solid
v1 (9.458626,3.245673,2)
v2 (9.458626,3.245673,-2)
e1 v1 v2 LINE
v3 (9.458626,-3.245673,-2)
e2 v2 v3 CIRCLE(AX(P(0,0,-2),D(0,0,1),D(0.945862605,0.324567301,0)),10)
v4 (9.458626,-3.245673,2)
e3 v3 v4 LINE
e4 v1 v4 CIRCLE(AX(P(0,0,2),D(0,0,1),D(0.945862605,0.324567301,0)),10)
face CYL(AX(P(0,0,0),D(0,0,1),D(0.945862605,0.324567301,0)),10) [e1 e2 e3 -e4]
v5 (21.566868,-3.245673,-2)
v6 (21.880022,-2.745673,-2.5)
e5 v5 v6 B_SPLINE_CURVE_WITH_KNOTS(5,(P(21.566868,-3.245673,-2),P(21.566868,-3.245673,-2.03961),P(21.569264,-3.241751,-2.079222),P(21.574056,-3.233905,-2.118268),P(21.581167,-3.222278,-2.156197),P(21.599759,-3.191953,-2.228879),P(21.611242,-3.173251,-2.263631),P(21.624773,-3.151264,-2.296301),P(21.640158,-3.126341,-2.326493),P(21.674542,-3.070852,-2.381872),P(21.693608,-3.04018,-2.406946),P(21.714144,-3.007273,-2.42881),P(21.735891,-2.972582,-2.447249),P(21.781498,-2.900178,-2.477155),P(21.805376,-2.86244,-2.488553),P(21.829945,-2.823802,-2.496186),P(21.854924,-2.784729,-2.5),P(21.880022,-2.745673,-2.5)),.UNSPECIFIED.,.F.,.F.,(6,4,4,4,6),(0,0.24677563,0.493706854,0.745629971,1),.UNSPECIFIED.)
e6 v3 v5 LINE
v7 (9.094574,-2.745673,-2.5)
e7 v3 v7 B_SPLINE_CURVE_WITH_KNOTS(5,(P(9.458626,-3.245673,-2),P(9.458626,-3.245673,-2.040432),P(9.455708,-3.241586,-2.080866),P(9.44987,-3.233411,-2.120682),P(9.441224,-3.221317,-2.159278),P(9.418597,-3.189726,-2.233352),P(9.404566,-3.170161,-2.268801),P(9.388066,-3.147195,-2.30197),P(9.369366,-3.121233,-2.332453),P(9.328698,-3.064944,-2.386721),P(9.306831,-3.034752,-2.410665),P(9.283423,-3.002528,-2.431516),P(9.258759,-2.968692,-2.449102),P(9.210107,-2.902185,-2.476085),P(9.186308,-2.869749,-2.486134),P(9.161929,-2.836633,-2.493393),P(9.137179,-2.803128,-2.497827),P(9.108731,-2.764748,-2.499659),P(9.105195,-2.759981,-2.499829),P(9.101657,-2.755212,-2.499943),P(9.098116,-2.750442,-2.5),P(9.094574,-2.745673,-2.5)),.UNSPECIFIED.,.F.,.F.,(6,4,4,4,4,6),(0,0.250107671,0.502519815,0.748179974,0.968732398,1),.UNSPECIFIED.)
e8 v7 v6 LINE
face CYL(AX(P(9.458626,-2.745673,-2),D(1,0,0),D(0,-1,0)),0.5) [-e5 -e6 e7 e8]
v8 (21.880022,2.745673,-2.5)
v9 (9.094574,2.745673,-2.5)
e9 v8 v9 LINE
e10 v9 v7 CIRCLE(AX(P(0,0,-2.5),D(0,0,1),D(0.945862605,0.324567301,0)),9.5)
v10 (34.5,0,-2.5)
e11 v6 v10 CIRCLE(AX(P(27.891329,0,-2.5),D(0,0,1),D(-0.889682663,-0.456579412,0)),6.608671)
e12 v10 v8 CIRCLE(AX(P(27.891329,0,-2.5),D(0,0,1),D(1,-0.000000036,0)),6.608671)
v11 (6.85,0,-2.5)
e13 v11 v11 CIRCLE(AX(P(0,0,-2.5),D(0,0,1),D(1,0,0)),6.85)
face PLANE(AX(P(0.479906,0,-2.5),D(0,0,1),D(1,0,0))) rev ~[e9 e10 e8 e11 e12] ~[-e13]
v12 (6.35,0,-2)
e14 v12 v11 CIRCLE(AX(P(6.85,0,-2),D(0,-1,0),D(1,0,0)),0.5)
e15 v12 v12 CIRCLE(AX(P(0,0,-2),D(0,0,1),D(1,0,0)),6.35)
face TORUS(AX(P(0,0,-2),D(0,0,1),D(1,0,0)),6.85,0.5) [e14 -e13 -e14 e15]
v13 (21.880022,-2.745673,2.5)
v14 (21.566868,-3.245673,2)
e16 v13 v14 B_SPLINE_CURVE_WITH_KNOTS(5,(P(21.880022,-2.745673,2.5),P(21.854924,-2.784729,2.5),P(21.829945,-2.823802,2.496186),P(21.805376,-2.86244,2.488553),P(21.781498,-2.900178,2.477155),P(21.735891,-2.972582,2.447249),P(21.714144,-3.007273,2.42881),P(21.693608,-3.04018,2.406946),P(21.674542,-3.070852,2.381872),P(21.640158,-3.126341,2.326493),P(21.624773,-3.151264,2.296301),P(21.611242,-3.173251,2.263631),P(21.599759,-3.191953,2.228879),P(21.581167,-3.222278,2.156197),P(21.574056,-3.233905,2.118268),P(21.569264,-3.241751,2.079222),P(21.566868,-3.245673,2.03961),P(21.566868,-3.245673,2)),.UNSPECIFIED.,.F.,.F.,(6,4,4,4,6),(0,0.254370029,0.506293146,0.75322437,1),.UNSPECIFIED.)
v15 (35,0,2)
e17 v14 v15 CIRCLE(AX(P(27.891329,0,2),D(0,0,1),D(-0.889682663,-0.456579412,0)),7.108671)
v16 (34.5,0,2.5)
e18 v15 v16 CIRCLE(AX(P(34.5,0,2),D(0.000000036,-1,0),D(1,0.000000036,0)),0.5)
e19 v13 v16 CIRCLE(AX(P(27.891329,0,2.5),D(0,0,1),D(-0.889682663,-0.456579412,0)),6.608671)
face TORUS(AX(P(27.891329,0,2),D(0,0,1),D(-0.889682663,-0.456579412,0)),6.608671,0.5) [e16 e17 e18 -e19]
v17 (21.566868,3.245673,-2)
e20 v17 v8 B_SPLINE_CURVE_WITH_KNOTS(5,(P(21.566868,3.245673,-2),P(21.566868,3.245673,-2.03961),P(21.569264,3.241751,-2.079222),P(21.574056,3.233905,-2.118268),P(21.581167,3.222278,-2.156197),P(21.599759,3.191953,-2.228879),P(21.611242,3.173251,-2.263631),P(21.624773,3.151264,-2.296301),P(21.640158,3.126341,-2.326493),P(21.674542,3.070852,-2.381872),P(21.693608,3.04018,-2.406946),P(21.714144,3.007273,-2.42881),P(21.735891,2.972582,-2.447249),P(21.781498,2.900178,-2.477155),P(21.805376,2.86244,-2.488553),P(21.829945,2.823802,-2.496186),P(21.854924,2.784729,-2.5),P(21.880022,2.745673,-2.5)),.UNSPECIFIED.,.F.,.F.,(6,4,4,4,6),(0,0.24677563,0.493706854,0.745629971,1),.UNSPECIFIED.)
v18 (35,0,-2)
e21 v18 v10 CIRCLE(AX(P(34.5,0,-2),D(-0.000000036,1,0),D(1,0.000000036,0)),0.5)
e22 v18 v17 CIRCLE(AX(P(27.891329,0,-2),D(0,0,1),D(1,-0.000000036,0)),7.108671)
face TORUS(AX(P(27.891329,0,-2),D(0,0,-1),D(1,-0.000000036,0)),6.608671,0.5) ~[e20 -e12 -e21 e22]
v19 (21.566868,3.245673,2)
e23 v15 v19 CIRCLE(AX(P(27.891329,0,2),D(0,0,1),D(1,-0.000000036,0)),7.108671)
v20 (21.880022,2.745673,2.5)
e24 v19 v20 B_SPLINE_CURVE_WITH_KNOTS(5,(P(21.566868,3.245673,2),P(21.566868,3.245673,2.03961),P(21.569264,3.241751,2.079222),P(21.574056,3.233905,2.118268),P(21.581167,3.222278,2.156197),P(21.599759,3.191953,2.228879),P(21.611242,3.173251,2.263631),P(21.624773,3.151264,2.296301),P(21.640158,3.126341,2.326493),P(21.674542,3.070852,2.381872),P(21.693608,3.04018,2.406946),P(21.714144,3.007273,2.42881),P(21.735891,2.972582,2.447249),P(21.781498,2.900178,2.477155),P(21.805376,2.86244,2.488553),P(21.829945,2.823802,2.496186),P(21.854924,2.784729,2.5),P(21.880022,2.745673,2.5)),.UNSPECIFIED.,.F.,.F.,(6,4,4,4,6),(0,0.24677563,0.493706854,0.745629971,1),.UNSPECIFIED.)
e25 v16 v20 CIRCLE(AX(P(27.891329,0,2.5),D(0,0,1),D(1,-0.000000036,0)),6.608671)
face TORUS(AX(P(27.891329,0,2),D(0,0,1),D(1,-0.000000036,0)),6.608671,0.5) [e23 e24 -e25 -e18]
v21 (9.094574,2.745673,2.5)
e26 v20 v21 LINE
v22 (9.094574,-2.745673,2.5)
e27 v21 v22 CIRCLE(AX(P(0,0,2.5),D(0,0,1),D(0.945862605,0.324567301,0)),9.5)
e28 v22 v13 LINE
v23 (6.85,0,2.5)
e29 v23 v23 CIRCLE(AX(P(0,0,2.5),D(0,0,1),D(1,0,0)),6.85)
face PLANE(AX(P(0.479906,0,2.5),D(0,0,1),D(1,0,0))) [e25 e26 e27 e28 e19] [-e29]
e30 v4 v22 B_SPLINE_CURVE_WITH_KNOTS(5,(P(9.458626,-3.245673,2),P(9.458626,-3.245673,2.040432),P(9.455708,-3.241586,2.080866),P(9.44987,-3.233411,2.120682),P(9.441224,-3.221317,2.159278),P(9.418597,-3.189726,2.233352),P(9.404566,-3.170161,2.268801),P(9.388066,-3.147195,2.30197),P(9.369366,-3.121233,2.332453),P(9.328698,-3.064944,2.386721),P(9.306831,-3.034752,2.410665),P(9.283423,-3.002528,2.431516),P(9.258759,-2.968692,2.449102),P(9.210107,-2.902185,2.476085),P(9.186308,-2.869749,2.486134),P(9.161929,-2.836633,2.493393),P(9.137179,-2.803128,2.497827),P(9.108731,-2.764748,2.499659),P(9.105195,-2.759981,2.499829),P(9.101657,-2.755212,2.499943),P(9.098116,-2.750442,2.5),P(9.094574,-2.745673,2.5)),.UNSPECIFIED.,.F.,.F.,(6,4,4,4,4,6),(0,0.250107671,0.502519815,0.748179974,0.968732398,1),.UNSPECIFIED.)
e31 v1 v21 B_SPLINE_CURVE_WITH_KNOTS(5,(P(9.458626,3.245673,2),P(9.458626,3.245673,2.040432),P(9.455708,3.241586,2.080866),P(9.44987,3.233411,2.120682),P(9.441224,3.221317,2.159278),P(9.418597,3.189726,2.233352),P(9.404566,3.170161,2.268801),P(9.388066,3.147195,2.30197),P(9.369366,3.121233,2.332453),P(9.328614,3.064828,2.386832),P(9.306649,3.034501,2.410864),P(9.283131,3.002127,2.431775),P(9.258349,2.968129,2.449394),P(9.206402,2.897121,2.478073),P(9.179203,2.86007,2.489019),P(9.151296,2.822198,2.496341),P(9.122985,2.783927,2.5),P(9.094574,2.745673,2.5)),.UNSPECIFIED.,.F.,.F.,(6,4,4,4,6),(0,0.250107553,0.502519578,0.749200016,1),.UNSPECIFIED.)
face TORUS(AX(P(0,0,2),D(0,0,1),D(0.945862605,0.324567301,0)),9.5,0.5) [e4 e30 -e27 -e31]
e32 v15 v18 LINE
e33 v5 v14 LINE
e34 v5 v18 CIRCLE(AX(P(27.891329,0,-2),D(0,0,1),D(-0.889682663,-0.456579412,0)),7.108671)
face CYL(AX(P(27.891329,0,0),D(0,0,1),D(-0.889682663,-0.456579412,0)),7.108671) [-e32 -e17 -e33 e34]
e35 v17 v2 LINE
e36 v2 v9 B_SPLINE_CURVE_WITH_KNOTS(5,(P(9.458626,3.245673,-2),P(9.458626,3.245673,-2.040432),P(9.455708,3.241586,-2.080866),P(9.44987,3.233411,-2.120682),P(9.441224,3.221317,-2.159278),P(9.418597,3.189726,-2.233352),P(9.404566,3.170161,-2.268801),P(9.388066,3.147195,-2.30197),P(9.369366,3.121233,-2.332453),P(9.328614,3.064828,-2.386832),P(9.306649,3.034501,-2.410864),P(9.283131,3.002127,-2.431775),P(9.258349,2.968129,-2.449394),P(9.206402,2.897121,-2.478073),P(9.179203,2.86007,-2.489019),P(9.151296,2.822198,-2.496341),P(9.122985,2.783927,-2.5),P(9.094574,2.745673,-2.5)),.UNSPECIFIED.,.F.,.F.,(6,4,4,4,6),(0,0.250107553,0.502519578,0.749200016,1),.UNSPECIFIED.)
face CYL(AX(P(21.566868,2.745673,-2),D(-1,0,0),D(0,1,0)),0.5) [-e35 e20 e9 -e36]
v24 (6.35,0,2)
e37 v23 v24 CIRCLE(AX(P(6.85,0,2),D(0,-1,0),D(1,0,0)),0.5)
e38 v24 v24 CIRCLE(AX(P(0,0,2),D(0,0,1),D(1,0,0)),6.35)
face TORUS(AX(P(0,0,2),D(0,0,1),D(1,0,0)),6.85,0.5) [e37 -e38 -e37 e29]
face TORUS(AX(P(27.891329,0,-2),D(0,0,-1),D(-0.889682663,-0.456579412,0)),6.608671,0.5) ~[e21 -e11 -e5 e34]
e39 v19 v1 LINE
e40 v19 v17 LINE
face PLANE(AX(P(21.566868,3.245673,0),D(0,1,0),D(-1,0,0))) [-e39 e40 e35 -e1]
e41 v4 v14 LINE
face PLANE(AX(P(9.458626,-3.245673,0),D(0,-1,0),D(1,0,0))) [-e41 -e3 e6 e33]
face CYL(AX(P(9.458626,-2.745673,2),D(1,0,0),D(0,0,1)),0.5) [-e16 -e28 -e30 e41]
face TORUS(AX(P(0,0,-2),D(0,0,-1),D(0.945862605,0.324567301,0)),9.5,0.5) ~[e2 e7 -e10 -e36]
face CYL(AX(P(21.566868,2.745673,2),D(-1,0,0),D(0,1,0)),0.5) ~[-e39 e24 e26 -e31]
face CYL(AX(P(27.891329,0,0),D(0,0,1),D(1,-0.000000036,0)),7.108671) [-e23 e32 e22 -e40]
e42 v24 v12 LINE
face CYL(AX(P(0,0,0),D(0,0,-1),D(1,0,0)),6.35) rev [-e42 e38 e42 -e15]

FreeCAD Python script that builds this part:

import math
import FreeCAD as App
import Part
import Sketcher

V = App.Vector
Q = App.Units.Quantity


def edges_at(feature, points):
    """Names of the edges that pass closest to the given points."""
    edges = feature.Shape.Edges
    near = lambda p: min(range(len(edges)), key=lambda i: edges[i].distToShape(Part.Vertex(*p))[0])
    return sorted({f"Edge{near(p) + 1}" for p in points})

doc = App.newDocument("Part")
body = doc.addObject("PartDesign::Body", "Body")

# Sketch on XY plane
sketch1 = doc.addObject("Sketcher::SketchObject", "Sketch")
body.addObject(sketch1)
sketch1.AttachmentSupport = (doc.XY_Plane, [""])
sketch1.MapMode = "FlatFace"
sketch1.addGeometry([
    Part.ArcOfCircle(Part.Circle(V(0, 0, 0), V(0, 0, 1), 10), math.radians(19), math.radians(341)),  # 0
    Part.LineSegment(V(9, -3, 0), V(22, -3, 0)),  # 1
    Part.ArcOfCircle(Part.Circle(V(28, 0, 0), V(0, 0, 1), 7), math.radians(-153), math.radians(0)),  # 2
    Part.ArcOfCircle(Part.Circle(V(28, 0, 0), V(0, 0, 1), 7), math.radians(0), math.radians(153)),  # 3
    Part.LineSegment(V(22, 3, 0), V(9, 3, 0)),  # 4
    Part.Circle(V(0, 0, 0), V(0, 0, 1), 6),  # 5
], False)
sketch1.addConstraint([
    Sketcher.Constraint("Coincident", 0, 2, 1, 1),
    Sketcher.Constraint("Coincident", 1, 2, 2, 1),
    Sketcher.Constraint("Tangent", 2, 2, 3, 1),
    Sketcher.Constraint("Coincident", 3, 2, 4, 1),
    Sketcher.Constraint("Coincident", 4, 2, 0, 1),
    Sketcher.Constraint("Horizontal", 1),
    Sketcher.Constraint("Horizontal", 4),
    Sketcher.Constraint("Coincident", 0, 3, -1, 1),
    Sketcher.Constraint("Coincident", 5, 3, -1, 1),
    Sketcher.Constraint("Equal", 2, 3),
    Sketcher.Constraint("Symmetric", 1, 2, 3, 2, -1),
    Sketcher.Constraint("PointOnObject", 2, 2, -1),
    Sketcher.Constraint("Radius", 0, Q("10 mm")),
    Sketcher.Constraint("Diameter", 5, Q("12.7 mm")),
    Sketcher.Constraint("DistanceX", -1, 1, 2, 2, Q("35 mm")),
    Sketcher.Constraint("Radius", 2, Q("7.108671 mm")),
    Sketcher.Constraint("DistanceX", 1, 1, 1, 2, Q("12.108242 mm")),
])
pad1 = doc.addObject("PartDesign::Pad", "Pad")
body.addObject(pad1)
pad1.Profile = sketch1
pad1.Length = 5
pad1.Midplane = True
doc.recompute()

fillet = doc.addObject("PartDesign::Fillet", "Fillet")
body.addObject(fillet)
fillet.Base = (pad1, edges_at(pad1, [
    (-10, 0, -2.5),
    (15.513, -3.246, -2.5),
    (29.561, -6.91, -2.5),
    (29.561, 6.91, -2.5),
    (15.513, 3.246, -2.5),
    (-6.35, 0, -2.5),
    (15.513, 3.246, 2.5),
    (-10, 0, 2.5),
    (15.513, -3.246, 2.5),
    (29.561, -6.91, 2.5),
    (29.561, 6.91, 2.5),
    (-6.35, 0, 2.5),
]))
fillet.Radius = 0.5

doc.recompute()
